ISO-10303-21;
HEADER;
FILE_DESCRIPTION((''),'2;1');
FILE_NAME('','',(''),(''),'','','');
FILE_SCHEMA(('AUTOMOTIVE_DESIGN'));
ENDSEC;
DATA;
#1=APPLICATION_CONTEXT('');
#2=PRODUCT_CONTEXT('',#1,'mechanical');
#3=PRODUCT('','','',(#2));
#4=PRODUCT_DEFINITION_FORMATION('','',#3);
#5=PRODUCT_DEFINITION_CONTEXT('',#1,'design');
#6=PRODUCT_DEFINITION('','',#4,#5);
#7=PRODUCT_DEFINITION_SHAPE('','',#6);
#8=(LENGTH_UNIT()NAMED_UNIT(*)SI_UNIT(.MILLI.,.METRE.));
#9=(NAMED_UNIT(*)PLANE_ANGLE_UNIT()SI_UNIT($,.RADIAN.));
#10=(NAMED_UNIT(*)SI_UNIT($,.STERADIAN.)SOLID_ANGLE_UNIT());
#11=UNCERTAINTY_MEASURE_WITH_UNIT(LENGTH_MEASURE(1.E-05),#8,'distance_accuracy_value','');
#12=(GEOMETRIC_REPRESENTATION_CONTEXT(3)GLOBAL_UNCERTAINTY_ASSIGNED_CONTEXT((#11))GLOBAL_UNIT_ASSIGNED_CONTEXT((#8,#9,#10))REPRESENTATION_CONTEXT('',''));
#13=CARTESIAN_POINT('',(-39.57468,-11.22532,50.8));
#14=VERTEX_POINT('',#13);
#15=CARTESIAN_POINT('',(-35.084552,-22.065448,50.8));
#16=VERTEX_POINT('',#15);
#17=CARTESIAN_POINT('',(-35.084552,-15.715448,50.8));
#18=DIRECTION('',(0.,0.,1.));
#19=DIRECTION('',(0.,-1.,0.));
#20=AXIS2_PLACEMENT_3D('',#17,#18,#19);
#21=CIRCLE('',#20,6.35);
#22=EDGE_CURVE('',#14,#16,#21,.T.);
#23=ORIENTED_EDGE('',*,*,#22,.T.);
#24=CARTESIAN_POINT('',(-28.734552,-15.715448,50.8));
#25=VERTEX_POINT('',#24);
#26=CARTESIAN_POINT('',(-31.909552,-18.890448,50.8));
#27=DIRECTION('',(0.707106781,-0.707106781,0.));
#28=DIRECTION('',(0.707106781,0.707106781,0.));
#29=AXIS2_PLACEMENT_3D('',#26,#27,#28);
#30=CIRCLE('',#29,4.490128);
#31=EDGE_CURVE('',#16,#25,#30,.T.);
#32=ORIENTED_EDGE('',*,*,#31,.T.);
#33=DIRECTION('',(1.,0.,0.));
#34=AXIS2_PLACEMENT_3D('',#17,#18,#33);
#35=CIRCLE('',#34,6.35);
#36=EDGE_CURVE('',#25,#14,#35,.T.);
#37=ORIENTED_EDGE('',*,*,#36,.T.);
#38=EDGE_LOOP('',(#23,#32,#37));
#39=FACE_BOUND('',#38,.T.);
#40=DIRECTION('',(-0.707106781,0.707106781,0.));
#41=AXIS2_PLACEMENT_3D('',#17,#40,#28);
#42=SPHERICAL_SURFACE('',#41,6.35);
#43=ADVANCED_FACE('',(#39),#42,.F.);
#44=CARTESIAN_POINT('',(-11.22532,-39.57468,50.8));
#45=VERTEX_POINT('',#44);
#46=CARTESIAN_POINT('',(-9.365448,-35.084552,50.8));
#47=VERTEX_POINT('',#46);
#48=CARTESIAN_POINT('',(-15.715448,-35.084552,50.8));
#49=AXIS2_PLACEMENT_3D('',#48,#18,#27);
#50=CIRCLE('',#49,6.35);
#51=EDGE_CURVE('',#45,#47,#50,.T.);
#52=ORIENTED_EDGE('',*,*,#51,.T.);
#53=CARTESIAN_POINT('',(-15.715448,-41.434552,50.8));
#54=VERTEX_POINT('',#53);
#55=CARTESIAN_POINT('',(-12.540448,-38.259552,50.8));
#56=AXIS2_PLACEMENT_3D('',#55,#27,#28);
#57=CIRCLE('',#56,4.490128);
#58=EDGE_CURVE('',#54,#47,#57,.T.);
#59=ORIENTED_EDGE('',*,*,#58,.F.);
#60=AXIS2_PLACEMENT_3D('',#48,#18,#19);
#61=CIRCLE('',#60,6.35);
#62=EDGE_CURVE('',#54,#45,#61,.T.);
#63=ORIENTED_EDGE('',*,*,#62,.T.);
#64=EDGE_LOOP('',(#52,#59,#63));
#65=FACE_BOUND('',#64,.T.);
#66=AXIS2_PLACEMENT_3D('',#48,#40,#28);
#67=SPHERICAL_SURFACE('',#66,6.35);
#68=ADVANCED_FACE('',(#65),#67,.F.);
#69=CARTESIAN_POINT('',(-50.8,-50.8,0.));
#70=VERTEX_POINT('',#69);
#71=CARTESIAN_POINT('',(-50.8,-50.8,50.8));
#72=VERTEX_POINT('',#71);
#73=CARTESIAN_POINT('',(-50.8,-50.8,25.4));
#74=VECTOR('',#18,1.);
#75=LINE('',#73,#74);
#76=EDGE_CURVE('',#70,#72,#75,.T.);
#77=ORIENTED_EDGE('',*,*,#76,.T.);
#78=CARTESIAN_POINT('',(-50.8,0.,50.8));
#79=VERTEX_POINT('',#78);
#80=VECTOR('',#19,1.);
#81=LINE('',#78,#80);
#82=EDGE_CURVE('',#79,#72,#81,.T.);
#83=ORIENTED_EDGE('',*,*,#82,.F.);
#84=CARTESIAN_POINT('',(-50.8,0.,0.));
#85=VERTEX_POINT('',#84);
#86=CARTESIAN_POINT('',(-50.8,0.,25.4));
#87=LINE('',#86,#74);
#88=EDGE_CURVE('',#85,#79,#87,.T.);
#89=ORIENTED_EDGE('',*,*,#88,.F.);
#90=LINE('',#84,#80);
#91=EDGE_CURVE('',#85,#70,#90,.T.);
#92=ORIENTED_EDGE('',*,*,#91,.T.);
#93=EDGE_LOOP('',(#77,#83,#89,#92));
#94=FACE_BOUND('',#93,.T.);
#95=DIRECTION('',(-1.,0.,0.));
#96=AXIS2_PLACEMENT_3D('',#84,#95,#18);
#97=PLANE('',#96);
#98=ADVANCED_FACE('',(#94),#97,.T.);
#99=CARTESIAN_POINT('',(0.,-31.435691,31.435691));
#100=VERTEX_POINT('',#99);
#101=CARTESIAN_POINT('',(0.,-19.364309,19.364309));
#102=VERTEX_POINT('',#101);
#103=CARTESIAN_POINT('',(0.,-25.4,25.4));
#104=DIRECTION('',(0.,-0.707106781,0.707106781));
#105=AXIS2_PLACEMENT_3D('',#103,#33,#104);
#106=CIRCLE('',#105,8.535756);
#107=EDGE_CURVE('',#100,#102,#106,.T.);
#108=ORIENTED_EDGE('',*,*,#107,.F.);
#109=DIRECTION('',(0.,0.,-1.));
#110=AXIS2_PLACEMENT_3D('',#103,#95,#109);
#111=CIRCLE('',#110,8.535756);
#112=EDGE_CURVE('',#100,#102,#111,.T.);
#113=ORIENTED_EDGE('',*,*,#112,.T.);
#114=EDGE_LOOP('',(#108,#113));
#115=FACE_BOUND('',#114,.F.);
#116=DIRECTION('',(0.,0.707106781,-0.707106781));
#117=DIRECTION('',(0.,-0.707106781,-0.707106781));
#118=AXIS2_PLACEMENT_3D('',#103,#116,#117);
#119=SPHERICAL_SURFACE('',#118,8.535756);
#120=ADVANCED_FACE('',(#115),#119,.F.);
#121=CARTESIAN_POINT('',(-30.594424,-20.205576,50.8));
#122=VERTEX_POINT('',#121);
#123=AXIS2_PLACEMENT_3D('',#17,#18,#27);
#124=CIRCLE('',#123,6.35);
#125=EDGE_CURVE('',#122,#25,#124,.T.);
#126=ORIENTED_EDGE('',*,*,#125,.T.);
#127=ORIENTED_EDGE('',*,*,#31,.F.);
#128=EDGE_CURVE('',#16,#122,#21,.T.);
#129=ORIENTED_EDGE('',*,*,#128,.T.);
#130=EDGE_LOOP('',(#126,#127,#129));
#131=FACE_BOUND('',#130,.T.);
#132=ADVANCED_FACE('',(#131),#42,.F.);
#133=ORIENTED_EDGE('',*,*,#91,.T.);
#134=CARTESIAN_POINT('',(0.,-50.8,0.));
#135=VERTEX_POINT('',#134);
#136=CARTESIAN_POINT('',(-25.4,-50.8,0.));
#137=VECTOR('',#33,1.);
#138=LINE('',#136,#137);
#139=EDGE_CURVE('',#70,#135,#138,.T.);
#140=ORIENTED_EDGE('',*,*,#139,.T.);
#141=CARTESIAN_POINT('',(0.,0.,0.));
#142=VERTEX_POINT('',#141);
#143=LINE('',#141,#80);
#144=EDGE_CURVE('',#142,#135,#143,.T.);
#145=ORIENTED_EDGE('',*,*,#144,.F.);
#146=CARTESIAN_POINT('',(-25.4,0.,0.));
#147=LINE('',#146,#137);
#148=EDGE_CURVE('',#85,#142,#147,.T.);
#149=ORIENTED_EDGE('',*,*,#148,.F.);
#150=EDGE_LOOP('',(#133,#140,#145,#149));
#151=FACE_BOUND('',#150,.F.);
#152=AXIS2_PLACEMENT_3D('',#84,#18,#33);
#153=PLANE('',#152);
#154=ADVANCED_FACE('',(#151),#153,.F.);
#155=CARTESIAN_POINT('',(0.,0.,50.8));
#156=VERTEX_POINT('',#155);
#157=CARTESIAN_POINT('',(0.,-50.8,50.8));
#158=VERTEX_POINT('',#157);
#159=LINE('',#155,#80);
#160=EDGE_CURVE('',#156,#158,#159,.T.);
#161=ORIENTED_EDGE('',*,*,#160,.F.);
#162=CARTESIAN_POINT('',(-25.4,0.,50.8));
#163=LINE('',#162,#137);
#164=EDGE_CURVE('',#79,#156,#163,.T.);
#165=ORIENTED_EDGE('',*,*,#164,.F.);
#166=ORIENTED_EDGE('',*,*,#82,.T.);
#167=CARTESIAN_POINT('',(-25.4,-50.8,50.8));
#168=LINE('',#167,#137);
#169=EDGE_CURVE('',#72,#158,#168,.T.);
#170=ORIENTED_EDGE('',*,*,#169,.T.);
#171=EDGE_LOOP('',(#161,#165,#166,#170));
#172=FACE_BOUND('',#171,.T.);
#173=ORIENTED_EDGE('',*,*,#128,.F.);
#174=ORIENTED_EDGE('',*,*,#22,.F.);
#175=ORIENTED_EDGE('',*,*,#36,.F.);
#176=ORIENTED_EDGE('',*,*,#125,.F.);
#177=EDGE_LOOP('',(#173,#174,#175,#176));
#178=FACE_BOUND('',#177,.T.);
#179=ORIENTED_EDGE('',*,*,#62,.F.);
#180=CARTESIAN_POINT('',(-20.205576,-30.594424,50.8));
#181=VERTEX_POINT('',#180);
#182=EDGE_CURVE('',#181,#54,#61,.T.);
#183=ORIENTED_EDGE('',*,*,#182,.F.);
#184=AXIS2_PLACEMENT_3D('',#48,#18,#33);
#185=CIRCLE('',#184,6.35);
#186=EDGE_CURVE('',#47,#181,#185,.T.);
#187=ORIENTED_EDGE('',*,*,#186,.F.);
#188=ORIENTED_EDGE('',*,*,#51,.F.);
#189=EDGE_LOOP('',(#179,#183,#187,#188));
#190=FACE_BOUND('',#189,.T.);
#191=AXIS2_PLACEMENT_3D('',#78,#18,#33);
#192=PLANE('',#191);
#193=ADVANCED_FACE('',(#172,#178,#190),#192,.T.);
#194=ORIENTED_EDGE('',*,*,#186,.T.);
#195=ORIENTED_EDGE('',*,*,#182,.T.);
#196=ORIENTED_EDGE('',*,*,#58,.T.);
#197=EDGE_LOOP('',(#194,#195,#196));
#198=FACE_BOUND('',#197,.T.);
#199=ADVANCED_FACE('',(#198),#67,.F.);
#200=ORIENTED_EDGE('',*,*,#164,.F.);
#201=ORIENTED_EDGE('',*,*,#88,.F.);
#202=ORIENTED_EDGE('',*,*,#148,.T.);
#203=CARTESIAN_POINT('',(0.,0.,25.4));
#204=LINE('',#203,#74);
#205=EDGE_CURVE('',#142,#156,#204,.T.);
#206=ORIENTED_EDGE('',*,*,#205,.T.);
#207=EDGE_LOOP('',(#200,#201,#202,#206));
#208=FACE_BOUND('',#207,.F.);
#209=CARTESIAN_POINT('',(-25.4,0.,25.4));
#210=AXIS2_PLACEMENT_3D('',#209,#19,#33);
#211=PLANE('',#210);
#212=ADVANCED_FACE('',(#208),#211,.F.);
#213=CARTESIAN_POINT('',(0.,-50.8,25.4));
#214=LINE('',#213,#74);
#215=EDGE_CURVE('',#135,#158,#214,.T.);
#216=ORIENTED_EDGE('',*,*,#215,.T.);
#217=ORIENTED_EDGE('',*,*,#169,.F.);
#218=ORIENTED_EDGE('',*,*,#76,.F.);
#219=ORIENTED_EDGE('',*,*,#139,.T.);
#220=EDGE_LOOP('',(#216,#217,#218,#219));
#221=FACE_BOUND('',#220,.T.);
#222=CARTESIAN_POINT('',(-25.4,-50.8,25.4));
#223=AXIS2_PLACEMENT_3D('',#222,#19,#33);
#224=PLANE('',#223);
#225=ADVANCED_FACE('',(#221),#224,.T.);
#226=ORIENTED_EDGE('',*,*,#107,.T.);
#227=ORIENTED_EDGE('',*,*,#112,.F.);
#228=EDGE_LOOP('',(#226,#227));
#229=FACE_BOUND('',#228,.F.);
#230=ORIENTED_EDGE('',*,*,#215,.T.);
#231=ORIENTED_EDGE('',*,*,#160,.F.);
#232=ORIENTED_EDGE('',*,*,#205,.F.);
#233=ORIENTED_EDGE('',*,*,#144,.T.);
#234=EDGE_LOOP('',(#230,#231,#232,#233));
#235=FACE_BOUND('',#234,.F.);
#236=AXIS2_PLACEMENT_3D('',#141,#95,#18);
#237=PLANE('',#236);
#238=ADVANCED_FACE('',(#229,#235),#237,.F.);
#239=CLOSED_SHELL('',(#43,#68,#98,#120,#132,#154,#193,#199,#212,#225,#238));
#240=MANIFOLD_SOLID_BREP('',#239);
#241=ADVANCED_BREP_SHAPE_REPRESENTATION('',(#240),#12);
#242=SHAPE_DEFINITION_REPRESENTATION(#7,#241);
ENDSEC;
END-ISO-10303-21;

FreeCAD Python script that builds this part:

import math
import FreeCAD as App
import Part
import Sketcher
Q = App.Units.Quantity

doc = App.newDocument("Part")
body = doc.addObject("PartDesign::Body", "Body")

sketch1 = body.newObject("Sketcher::SketchObject", "Sketch")
sketch1.AttachmentSupport = (doc.getObject("XZ_Plane"), [""])
sketch1.MapMode = "FlatFace"
sketch1.addGeometry(Part.LineSegment(App.Vector(-51, 51, 0), App.Vector(-51, 0, 0)), False)
sketch1.addGeometry(Part.LineSegment(App.Vector(-51, 0, 0), App.Vector(0, 0, 0)), False)
sketch1.addGeometry(Part.LineSegment(App.Vector(0, 0, 0), App.Vector(0, 51, 0)), False)
sketch1.addGeometry(Part.LineSegment(App.Vector(0, 51, 0), App.Vector(-51, 51, 0)), False)
sketch1.addConstraint(Sketcher.Constraint("Coincident", 0, 2, 1, 1))
sketch1.addConstraint(Sketcher.Constraint("Coincident", 1, 2, 2, 1))
sketch1.addConstraint(Sketcher.Constraint("Coincident", 2, 2, 3, 1))
sketch1.addConstraint(Sketcher.Constraint("Coincident", 3, 2, 0, 1))
sketch1.addConstraint(Sketcher.Constraint("Vertical", 0))
sketch1.addConstraint(Sketcher.Constraint("Horizontal", 1))
sketch1.addConstraint(Sketcher.Constraint("Vertical", 2))
sketch1.addConstraint(Sketcher.Constraint("Horizontal", 3))
sketch1.addConstraint(Sketcher.Constraint("Coincident", 1, 2, -1, 1))
sketch1.addConstraint(Sketcher.Constraint("Equal", 3, 0))
sketch1.addConstraint(Sketcher.Constraint("DistanceX", 1, 1, 1, 2, Q("2 in")))
pad1 = body.newObject("PartDesign::Pad", "Pad")
pad1.Profile = sketch1
pad1.Length = Q("2 in")

sketch2 = body.newObject("Sketcher::SketchObject", "Sketch001")
sketch2.AttachmentSupport = (doc.getObject("YZ_Plane"), [""])
sketch2.MapMode = "FlatFace"
sketch2.addGeometry(Part.LineSegment(App.Vector(-19, 19, 0), App.Vector(-31, 31, 0)), False)
sketch2.addGeometry(Part.ArcOfCircle(Part.Circle(App.Vector(-25, 25, 0), App.Vector(0, 0, 1), 9), math.radians(135), math.radians(315)), False)
sketch2.addGeometry(Part.LineSegment(App.Vector(-31, 31, 0), App.Vector(-19, 19, 0)), True)
sketch2.addConstraint(Sketcher.Constraint("Coincident", 0, 1, 1, 2))
sketch2.addConstraint(Sketcher.Constraint("Coincident", 1, 1, 0, 2))
sketch2.addConstraint(Sketcher.Constraint("Coincident", 2, 1, 1, 1))
sketch2.addConstraint(Sketcher.Constraint("Coincident", 2, 2, 0, 1))
sketch2.addConstraint(Sketcher.Constraint("DistanceX", 1, 3, -1, 1, Q("1 in")))
sketch2.addConstraint(Sketcher.Constraint("DistanceY", -1, 1, 1, 3, Q("1 in")))
sketch2.addConstraint(Sketcher.Constraint("Angle", 0, Q("135 deg")))
sketch2.addConstraint(Sketcher.Constraint("Radius", 1, 8.535756))
sketch2.addConstraint(Sketcher.Constraint("DistanceX", 0, 1, -1, 1, 19.364309))
groove = body.newObject("PartDesign::Groove", "Groove")
groove.Profile = sketch2
groove.ReferenceAxis = (sketch2, ["Axis0"])
groove.Angle = 360

sketch3 = body.newObject("Sketcher::SketchObject", "Sketch002")
sketch3.AttachmentSupport = (doc.getObject("XY_Plane"), [""])
sketch3.MapMode = "FlatFace"
sketch3.AttachmentOffset = App.Placement(App.Vector(0, 0, 2 * 25.4), App.Rotation())
sketch3.addGeometry(Part.ArcOfCircle(Part.Circle(App.Vector(-35.1, -15.7, 0), App.Vector(0, 0, 1), 6.3), math.radians(0), math.radians(135)), False)
sketch3.addGeometry(Part.LineSegment(App.Vector(-39.6, -11.2, 0), App.Vector(-30.6, -20.2, 0)), False)
sketch3.addGeometry(Part.ArcOfCircle(Part.Circle(App.Vector(-35.1, -15.7, 0), App.Vector(0, 0, 1), 6.3), math.radians(-45), math.radians(0)), False)
sketch3.addGeometry(Part.ArcOfCircle(Part.Circle(App.Vector(-15.7, -35.1, 0), App.Vector(0, 0, 1), 6.3), math.radians(0), math.radians(135)), False)
sketch3.addGeometry(Part.LineSegment(App.Vector(-20.2, -30.6, 0), App.Vector(-11.2, -39.6, 0)), False)
sketch3.addGeometry(Part.ArcOfCircle(Part.Circle(App.Vector(-15.7, -35.1, 0), App.Vector(0, 0, 1), 6.3), math.radians(-45), math.radians(0)), False)
sketch3.addGeometry(Part.LineSegment(App.Vector(-39.6, -11.2, 0), App.Vector(-11.2, -39.6, 0)), True)
sketch3.addConstraint(Sketcher.Constraint("Coincident", 0, 2, 1, 1))
sketch3.addConstraint(Sketcher.Constraint("Coincident", 1, 2, 2, 1))
sketch3.addConstraint(Sketcher.Constraint("Tangent", 2, 2, 0, 1))
sketch3.addConstraint(Sketcher.Constraint("Coincident", 3, 2, 4, 1))
sketch3.addConstraint(Sketcher.Constraint("Coincident", 4, 2, 5, 1))
sketch3.addConstraint(Sketcher.Constraint("Tangent", 5, 2, 3, 1))
sketch3.addConstraint(Sketcher.Constraint("Coincident", 6, 1, 0, 2))
sketch3.addConstraint(Sketcher.Constraint("Coincident", 6, 2, 4, 2))
sketch3.addConstraint(Sketcher.Constraint("Equal", 0, 2))
sketch3.addConstraint(Sketcher.Constraint("Equal", 2, 3))
sketch3.addConstraint(Sketcher.Constraint("Equal", 3, 5))
sketch3.addConstraint(Sketcher.Constraint("Parallel", 1, 4))
sketch3.addConstraint(Sketcher.Constraint("Parallel", 4, 6))
sketch3.addConstraint(Sketcher.Constraint("Horizontal", 0, 3, 2, 2))
sketch3.addConstraint(Sketcher.Constraint("Horizontal", 3, 3, 5, 2))
sketch3.addConstraint(Sketcher.Constraint("Radius", 0, Q("0.25 in")))
sketch3.addConstraint(Sketcher.Constraint("Angle", 1, Q("-45 deg")))
sketch3.addConstraint(Sketcher.Constraint("Distance", 6, 40.092049))
sketch3.addConstraint(Sketcher.Constraint("DistanceX", 0, 3, -1, 1, 35.084552))
sketch3.addConstraint(Sketcher.Constraint("DistanceY", 0, 3, -1, 1, 15.715448))
sketch3.addConstraint(Sketcher.Constraint("DistanceX", 3, 3, -1, 1, 15.715448))
sketch3.addConstraint(Sketcher.Constraint("DistanceX", 0, 2, -1, 1, 39.57468))
groove2 = body.newObject("PartDesign::Groove", "Groove001")
groove2.Profile = sketch3
groove2.ReferenceAxis = (sketch3, ["Axis0"])
groove2.Angle = 360

doc.recompute()
